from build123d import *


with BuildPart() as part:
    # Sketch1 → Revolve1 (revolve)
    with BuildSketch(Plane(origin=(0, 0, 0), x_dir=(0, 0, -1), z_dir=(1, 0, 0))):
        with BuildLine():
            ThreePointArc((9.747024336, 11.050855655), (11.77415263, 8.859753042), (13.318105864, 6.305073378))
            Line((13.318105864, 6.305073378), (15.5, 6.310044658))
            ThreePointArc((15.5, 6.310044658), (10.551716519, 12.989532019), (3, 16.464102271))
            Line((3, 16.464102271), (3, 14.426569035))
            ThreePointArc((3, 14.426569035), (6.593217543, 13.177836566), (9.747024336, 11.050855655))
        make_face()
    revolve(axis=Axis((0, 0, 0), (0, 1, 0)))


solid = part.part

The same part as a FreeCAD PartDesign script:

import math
import FreeCAD as App
import Part
import Sketcher

V = App.Vector

doc = App.newDocument("Part")
body = doc.addObject("PartDesign::Body", "Body")

# Sketch on YZ plane
sketch1 = body.newObject("Sketcher::SketchObject", "Sketch")
sketch1.AttachmentSupport = (doc.getObject("YZ_Plane"), [""])
sketch1.MapMode = "FlatFace"
sketch1.addGeometry([
    Part.ArcOfCircle(Part.Circle(V(0, 0, 0), V(0, 0, 1), 14.7), math.radians(-65), math.radians(-41)),  # 0
    Part.LineSegment(V(6.3, -13.3, 0), V(6.3, -15.5, 0)),  # 1
    Part.ArcOfCircle(Part.Circle(V(0, 0, 0), V(0, 0, 1), 16.7), math.radians(-68), math.radians(-10)),  # 2
    Part.LineSegment(V(16.5, -3, 0), V(14.4, -3, 0)),  # 3
    Part.ArcOfCircle(Part.Circle(V(0, 0, 0), V(0, 0, 1), 14.7), math.radians(-41), math.radians(-12)),  # 4
], False)
sketch1.addConstraint([
    Sketcher.Constraint("Coincident", 0, 1, 1, 1),
    Sketcher.Constraint("Coincident", 1, 2, 2, 1),
    Sketcher.Constraint("Coincident", 2, 2, 3, 1),
    Sketcher.Constraint("Coincident", 3, 2, 4, 2),
    Sketcher.Constraint("Tangent", 4, 1, 0, 2),
    Sketcher.Constraint("Horizontal", 3),
    Sketcher.Constraint("Coincident", 0, 3, -1, 1),
    Sketcher.Constraint("Coincident", 2, 3, -1, 1),
    Sketcher.Constraint("Equal", 0, 4),
    Sketcher.Constraint("DistanceY", 2, 2, -1, 1, 3.0),
    Sketcher.Constraint("DistanceY", 1, 2, -1, 1, 15.5),
    Sketcher.Constraint("Radius", 0, 14.735192),
    Sketcher.Constraint("Radius", 2, 16.735192),
    Sketcher.Constraint("Distance", 1, 2.1819),
    Sketcher.Constraint("DistanceY", 0, 1, 4, 1, 3.571082),
])
revolution = body.newObject("PartDesign::Revolution", "Revolution")
revolution.Profile = sketch1
revolution.ReferenceAxis = (sketch1, ["H_Axis"])
revolution.Angle = 360

doc.recompute()
